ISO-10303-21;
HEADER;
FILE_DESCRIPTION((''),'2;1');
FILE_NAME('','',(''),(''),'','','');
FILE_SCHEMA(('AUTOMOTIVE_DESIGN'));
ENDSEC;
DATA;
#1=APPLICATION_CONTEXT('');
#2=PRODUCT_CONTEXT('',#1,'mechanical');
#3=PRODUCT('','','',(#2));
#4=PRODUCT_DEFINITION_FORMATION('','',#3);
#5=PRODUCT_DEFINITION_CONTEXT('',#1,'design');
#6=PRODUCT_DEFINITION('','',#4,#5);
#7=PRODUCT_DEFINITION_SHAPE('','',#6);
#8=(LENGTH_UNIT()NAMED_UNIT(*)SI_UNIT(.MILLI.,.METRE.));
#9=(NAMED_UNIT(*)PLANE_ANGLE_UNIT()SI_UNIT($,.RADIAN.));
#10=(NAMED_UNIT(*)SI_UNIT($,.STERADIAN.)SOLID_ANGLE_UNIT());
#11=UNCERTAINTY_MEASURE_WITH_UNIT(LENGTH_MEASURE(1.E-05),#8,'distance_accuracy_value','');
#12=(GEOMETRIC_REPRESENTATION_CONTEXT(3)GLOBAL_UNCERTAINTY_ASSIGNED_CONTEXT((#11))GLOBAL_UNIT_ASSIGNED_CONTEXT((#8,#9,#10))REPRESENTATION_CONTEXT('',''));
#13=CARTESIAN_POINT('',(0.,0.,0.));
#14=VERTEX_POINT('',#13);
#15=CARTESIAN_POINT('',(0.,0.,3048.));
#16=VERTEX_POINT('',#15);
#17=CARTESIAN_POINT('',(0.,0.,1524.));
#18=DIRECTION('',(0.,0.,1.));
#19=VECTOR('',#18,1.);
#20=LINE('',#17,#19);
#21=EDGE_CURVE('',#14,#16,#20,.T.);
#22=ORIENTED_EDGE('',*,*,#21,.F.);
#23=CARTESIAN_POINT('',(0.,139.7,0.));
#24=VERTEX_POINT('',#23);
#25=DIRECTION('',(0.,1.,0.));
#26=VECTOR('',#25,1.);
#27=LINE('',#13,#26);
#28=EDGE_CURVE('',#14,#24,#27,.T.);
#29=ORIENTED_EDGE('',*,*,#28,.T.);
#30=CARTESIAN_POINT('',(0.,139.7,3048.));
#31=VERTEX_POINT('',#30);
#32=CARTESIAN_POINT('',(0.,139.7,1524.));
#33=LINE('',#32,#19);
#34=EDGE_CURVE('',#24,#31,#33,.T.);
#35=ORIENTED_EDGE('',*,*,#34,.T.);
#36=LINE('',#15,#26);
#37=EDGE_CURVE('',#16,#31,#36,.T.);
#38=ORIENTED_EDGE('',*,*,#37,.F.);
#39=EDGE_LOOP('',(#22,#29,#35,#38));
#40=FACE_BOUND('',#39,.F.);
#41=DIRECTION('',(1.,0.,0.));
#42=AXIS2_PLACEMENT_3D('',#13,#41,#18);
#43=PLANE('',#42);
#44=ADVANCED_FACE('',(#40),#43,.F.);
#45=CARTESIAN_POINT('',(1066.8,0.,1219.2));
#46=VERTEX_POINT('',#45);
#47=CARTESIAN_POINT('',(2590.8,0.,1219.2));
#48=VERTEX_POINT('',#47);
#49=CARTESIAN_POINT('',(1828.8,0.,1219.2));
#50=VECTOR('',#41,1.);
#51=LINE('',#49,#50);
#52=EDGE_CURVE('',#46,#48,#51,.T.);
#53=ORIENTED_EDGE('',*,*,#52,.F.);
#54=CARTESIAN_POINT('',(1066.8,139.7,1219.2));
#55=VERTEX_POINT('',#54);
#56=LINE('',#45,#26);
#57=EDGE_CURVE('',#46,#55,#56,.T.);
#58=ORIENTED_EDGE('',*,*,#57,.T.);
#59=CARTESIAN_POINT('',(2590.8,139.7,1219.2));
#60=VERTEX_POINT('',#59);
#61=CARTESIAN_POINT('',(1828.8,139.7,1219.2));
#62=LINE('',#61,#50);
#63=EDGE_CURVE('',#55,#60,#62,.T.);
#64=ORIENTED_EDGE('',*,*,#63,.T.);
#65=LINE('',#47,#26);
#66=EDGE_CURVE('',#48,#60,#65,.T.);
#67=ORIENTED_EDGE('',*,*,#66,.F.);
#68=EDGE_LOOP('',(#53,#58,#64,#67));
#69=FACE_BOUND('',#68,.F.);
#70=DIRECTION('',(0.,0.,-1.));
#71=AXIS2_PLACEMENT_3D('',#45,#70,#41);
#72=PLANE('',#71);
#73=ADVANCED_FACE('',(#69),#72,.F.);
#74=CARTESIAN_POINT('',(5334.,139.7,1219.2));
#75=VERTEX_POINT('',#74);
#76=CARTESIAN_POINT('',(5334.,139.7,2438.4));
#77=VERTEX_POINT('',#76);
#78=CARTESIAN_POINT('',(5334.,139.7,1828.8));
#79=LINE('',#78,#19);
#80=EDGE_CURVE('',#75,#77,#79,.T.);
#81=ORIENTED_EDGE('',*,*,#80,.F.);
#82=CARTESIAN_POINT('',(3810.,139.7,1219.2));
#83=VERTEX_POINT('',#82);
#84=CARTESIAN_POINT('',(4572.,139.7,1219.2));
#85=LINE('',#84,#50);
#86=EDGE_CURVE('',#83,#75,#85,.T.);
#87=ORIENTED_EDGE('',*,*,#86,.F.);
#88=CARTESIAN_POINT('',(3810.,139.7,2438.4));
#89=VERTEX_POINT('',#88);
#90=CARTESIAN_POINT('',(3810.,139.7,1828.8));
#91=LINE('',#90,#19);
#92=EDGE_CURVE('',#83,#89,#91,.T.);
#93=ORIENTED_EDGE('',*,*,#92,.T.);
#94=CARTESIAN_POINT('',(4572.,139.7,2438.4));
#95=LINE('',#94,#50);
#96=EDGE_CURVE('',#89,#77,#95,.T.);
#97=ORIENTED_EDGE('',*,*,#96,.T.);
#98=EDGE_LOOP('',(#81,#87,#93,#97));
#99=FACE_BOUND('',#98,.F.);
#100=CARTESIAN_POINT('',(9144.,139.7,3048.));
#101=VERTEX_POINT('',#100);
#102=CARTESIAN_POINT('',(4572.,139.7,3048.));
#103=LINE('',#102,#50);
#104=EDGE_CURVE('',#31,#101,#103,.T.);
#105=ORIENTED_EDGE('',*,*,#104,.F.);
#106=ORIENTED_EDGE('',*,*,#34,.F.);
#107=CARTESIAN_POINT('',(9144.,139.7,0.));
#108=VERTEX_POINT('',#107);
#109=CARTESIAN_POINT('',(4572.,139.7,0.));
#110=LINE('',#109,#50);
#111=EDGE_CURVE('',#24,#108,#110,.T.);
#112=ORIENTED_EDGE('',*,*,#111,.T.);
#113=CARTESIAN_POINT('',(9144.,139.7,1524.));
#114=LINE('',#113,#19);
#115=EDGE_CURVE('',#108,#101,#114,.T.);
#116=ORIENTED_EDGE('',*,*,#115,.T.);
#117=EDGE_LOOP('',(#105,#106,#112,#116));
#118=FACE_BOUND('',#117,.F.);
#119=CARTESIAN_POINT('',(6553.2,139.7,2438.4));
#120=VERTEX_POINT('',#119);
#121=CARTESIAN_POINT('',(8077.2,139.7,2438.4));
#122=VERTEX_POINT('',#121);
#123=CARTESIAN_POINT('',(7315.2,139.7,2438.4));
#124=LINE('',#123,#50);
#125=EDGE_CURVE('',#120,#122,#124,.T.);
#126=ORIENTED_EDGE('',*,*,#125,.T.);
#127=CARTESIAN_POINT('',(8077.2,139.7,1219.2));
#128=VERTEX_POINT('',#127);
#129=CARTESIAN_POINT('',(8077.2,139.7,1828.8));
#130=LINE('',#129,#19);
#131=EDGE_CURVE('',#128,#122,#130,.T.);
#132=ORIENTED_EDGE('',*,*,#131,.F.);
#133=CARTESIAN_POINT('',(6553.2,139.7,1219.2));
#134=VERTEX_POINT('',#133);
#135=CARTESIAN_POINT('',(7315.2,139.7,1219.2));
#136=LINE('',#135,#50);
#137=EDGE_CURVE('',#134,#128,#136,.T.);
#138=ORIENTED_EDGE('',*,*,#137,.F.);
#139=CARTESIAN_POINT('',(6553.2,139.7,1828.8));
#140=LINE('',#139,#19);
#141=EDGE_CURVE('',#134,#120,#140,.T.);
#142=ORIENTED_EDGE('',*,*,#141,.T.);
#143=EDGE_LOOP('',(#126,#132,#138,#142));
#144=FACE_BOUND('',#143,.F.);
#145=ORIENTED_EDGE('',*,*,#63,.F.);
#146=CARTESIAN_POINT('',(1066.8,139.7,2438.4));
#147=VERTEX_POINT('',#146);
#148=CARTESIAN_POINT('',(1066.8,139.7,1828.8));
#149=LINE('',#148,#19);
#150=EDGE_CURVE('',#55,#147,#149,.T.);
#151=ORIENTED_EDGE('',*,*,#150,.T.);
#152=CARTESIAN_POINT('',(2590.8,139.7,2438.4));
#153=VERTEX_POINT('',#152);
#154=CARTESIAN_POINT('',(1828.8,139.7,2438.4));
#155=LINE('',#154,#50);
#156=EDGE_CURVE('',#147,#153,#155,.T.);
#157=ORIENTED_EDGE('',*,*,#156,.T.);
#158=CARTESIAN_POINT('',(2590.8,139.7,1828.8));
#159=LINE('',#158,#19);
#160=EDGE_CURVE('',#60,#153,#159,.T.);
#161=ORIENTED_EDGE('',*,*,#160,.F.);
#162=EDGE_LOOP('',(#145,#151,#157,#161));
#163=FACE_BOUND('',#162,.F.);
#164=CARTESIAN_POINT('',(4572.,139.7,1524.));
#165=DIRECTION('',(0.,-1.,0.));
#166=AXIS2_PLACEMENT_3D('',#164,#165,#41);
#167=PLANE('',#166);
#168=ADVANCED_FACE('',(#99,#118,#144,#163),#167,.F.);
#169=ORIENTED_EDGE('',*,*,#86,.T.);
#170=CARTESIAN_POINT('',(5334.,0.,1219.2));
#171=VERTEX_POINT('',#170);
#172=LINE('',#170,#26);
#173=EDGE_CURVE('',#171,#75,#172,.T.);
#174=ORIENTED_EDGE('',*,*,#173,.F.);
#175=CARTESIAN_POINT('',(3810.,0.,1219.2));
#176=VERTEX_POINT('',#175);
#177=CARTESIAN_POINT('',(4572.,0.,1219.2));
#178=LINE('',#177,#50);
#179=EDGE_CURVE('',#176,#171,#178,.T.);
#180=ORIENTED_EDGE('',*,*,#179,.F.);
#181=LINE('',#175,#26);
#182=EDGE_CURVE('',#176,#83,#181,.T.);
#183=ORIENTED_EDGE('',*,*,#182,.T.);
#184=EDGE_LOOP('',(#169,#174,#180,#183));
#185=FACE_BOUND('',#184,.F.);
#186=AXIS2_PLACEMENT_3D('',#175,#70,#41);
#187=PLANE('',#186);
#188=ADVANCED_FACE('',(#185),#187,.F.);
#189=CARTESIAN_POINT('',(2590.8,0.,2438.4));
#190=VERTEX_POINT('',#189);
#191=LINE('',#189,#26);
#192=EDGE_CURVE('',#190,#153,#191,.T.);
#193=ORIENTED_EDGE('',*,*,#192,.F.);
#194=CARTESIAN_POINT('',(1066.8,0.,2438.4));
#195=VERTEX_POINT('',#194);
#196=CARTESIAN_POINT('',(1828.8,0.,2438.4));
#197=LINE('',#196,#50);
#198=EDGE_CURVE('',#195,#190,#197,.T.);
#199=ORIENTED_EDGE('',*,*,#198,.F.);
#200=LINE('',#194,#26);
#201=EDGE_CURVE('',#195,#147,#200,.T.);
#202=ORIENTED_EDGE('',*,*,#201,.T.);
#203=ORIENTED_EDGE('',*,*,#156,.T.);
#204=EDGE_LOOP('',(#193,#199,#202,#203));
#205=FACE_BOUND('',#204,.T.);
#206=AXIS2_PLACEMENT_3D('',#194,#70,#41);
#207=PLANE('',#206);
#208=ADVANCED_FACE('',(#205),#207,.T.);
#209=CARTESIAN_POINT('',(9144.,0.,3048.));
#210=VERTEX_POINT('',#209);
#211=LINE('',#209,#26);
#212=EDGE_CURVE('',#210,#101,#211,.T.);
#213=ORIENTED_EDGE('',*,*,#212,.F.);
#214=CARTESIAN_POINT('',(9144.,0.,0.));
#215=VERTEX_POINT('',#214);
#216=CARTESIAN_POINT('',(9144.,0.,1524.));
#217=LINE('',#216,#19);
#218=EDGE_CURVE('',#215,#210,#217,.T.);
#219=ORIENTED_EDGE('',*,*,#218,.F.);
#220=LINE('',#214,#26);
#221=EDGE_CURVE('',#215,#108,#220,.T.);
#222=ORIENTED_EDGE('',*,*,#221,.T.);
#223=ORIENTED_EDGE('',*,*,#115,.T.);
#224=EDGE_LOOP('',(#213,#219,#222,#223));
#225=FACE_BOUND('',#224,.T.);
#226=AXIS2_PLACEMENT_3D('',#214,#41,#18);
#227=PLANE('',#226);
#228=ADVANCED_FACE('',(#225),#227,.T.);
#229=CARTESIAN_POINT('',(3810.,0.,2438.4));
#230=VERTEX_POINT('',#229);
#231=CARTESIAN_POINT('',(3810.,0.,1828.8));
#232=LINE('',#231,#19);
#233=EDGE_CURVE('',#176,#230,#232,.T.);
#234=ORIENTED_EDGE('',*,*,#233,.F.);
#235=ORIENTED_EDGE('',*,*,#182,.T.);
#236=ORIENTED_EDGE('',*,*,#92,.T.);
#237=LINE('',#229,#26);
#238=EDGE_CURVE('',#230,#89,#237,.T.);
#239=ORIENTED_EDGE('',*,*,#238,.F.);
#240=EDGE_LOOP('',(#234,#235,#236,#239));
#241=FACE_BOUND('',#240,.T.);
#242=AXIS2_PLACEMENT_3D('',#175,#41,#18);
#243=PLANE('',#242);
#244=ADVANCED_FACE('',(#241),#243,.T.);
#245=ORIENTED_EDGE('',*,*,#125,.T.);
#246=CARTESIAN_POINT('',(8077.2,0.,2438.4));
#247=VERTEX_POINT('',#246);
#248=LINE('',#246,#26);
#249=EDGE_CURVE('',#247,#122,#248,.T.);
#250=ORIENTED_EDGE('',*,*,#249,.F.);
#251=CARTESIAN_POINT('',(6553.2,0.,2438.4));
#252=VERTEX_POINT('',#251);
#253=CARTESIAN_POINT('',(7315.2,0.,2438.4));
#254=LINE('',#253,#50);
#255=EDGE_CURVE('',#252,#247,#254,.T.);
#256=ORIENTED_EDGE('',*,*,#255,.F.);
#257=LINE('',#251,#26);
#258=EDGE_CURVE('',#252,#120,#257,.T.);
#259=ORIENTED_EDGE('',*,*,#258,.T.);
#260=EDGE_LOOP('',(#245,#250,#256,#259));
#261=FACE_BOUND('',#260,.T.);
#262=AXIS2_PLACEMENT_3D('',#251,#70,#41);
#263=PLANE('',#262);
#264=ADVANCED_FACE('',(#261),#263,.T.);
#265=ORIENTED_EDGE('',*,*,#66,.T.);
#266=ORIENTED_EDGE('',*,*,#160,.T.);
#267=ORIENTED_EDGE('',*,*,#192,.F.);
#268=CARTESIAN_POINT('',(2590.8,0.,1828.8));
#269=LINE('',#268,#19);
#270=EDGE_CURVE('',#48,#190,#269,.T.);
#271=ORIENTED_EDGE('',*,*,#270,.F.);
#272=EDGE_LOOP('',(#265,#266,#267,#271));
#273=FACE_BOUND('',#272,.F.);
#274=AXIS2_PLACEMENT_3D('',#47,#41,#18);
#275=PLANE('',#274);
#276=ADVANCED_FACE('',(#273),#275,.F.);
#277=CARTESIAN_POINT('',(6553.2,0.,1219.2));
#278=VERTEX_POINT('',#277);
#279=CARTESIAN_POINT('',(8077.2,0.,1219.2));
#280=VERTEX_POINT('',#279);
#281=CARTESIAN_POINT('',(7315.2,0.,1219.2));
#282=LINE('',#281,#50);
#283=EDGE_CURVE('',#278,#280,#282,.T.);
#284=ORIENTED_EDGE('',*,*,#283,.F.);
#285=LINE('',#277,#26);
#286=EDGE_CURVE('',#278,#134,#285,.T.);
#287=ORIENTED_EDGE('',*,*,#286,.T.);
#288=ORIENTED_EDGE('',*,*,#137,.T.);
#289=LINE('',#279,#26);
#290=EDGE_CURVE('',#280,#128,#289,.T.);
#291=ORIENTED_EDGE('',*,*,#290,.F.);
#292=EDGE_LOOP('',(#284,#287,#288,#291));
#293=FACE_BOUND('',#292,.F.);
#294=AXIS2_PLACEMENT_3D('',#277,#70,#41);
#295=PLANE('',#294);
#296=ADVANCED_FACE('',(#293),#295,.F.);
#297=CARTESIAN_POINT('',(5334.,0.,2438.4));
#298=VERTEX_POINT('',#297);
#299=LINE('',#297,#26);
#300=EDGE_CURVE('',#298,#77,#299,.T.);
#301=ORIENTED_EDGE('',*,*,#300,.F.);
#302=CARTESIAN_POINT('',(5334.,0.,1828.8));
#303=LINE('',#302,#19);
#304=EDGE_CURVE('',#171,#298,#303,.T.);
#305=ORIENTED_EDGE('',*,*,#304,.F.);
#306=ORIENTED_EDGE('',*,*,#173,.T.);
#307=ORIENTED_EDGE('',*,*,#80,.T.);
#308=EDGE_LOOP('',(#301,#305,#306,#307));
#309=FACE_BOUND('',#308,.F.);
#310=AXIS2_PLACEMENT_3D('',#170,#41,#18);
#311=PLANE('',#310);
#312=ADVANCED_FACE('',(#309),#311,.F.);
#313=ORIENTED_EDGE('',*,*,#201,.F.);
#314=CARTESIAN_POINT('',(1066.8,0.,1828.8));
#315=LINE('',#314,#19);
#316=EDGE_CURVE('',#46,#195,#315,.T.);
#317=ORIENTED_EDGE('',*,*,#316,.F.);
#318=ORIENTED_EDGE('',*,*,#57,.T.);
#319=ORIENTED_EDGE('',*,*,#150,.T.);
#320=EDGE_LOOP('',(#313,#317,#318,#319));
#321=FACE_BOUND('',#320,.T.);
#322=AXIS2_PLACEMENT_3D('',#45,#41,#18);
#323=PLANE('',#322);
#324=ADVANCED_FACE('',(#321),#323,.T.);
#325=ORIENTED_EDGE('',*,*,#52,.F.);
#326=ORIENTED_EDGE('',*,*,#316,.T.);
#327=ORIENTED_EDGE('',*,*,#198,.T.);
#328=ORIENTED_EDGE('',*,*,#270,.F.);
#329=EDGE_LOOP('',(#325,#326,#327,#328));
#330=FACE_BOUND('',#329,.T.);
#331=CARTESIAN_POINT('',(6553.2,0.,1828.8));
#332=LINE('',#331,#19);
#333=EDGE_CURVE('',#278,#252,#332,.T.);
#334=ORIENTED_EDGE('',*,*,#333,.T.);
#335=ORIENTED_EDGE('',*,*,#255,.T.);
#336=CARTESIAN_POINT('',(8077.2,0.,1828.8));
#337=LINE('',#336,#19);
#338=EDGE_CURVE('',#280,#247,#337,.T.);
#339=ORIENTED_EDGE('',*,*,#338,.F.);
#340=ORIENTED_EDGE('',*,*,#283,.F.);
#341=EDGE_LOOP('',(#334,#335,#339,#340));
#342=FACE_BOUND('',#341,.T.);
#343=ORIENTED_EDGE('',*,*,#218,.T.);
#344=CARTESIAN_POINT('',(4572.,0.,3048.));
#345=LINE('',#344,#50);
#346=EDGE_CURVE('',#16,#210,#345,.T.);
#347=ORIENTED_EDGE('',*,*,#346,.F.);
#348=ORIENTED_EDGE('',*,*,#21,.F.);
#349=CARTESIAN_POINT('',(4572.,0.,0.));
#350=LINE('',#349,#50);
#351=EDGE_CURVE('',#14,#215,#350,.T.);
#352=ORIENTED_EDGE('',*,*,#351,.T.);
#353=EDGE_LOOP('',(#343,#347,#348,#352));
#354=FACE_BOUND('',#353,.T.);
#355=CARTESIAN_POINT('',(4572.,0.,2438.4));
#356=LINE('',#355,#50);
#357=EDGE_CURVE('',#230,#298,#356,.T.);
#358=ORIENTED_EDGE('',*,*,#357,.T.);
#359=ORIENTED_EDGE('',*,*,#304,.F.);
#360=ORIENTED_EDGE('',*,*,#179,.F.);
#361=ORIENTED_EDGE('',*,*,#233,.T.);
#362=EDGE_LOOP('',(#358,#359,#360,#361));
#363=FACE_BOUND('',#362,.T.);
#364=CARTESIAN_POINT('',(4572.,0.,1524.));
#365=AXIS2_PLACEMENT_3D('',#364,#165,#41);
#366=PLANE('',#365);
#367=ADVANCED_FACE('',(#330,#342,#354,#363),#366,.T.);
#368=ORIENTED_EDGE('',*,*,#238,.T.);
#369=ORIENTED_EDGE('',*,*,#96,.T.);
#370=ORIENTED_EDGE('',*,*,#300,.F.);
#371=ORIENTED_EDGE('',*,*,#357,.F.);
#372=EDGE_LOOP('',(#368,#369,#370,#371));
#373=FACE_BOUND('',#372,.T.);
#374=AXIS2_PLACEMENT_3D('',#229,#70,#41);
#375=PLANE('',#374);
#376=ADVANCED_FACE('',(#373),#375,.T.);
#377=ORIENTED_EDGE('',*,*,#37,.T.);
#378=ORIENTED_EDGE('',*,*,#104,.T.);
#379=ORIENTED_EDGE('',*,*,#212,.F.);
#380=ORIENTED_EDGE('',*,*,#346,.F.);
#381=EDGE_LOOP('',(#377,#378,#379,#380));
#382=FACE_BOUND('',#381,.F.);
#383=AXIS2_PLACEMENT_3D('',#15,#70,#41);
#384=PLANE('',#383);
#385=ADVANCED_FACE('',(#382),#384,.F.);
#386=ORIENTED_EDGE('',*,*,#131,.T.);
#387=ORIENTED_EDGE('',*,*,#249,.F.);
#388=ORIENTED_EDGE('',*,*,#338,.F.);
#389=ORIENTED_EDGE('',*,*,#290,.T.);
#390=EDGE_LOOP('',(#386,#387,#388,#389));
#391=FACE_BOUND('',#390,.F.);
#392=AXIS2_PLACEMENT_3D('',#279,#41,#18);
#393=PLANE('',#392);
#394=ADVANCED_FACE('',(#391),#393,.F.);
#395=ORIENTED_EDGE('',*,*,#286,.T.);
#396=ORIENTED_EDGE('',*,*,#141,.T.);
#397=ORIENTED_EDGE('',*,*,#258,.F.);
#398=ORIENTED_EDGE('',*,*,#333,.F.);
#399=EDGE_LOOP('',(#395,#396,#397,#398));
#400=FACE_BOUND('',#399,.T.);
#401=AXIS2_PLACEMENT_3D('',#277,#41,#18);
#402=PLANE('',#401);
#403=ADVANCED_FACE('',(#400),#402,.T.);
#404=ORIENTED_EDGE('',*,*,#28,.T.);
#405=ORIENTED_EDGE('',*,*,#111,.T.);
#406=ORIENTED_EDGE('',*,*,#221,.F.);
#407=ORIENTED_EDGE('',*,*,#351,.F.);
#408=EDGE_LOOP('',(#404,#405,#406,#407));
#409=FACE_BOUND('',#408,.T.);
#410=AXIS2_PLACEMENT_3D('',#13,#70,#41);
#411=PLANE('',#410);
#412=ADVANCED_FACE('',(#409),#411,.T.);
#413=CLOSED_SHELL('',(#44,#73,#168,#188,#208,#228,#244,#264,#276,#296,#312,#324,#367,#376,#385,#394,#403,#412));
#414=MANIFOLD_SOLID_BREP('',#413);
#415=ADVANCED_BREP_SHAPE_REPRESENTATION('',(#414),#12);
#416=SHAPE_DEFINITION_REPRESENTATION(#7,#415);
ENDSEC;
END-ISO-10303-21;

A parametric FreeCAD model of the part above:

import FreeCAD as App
import Part
import Sketcher
Q = App.Units.Quantity

doc = App.newDocument("Part")
body = doc.addObject("PartDesign::Body", "Body")

sketch1 = body.newObject("Sketcher::SketchObject", "Sketch")
sketch1.AttachmentSupport = (doc.getObject("XZ_Plane"), [""])
sketch1.MapMode = "FlatFace"
sketch1.addGeometry([
    Part.LineSegment(App.Vector(0, 3048, 0), App.Vector(0, 0, 0)),
    Part.LineSegment(App.Vector(0, 0, 0), App.Vector(9144, 0, 0)),
    Part.LineSegment(App.Vector(9144, 0, 0), App.Vector(9144, 3048, 0)),
    Part.LineSegment(App.Vector(9144, 3048, 0), App.Vector(0, 3048, 0)),
    Part.LineSegment(App.Vector(2591, 1219, 0), App.Vector(1067, 1219, 0)),
    Part.LineSegment(App.Vector(1067, 1219, 0), App.Vector(1067, 2438, 0)),
    Part.LineSegment(App.Vector(1067, 2438, 0), App.Vector(2591, 2438, 0)),
    Part.LineSegment(App.Vector(2591, 2438, 0), App.Vector(2591, 1219, 0)),
    Part.LineSegment(App.Vector(5334, 1219, 0), App.Vector(3810, 1219, 0)),
    Part.LineSegment(App.Vector(3810, 1219, 0), App.Vector(3810, 2438, 0)),
    Part.LineSegment(App.Vector(3810, 2438, 0), App.Vector(5334, 2438, 0)),
    Part.LineSegment(App.Vector(5334, 2438, 0), App.Vector(5334, 1219, 0)),
    Part.LineSegment(App.Vector(8077, 1219, 0), App.Vector(6553, 1219, 0)),
    Part.LineSegment(App.Vector(6553, 1219, 0), App.Vector(6553, 2438, 0)),
    Part.LineSegment(App.Vector(6553, 2438, 0), App.Vector(8077, 2438, 0)),
    Part.LineSegment(App.Vector(8077, 2438, 0), App.Vector(8077, 1219, 0)),
], False)
sketch1.addConstraint([
    Sketcher.Constraint("Coincident", 0, 2, 1, 1),
    Sketcher.Constraint("Coincident", 1, 2, 2, 1),
    Sketcher.Constraint("Coincident", 2, 2, 3, 1),
    Sketcher.Constraint("Coincident", 3, 2, 0, 1),
    Sketcher.Constraint("Coincident", 4, 2, 5, 1),
    Sketcher.Constraint("Coincident", 5, 2, 6, 1),
    Sketcher.Constraint("Coincident", 6, 2, 7, 1),
    Sketcher.Constraint("Coincident", 7, 2, 4, 1),
    Sketcher.Constraint("Coincident", 8, 2, 9, 1),
    Sketcher.Constraint("Coincident", 9, 2, 10, 1),
    Sketcher.Constraint("Coincident", 10, 2, 11, 1),
    Sketcher.Constraint("Coincident", 11, 2, 8, 1),
    Sketcher.Constraint("Coincident", 12, 2, 13, 1),
    Sketcher.Constraint("Coincident", 13, 2, 14, 1),
    Sketcher.Constraint("Coincident", 14, 2, 15, 1),
    Sketcher.Constraint("Coincident", 15, 2, 12, 1),
    Sketcher.Constraint("Vertical", 0),
    Sketcher.Constraint("Horizontal", 1),
    Sketcher.Constraint("Vertical", 2),
    Sketcher.Constraint("Horizontal", 3),
    Sketcher.Constraint("Horizontal", 4),
    Sketcher.Constraint("Vertical", 5),
    Sketcher.Constraint("Horizontal", 6),
    Sketcher.Constraint("Vertical", 7),
    Sketcher.Constraint("Horizontal", 8),
    Sketcher.Constraint("Vertical", 9),
    Sketcher.Constraint("Horizontal", 10),
    Sketcher.Constraint("Vertical", 11),
    Sketcher.Constraint("Horizontal", 12),
    Sketcher.Constraint("Vertical", 13),
    Sketcher.Constraint("Horizontal", 14),
    Sketcher.Constraint("Vertical", 15),
    Sketcher.Constraint("Coincident", 0, 2, -1, 1),
    Sketcher.Constraint("Horizontal", 7, 2, 8, 2),
    Sketcher.Constraint("Horizontal", 6, 2, 9, 2),
    Sketcher.Constraint("Horizontal", 11, 2, 12, 2),
    Sketcher.Constraint("Horizontal", 10, 2, 13, 2),
    Sketcher.Constraint("Equal", 6, 8),
    Sketcher.Constraint("Equal", 10, 12),
    Sketcher.Constraint("DistanceX", 1, 1, 1, 2, Q("360 in")),
    Sketcher.Constraint("DistanceX", 4, 2, 4, 1, Q("60 in")),
    Sketcher.Constraint("DistanceY", 0, 2, 0, 1, Q("120 in")),
    Sketcher.Constraint("DistanceY", 5, 1, 5, 2, Q("48 in")),
    Sketcher.Constraint("DistanceX", -1, 1, 4, 2, Q("42 in")),
    Sketcher.Constraint("DistanceY", -1, 1, 4, 2, Q("48 in")),
    Sketcher.Constraint("DistanceX", -1, 1, 8, 2, Q("150 in")),
    Sketcher.Constraint("DistanceX", -1, 1, 12, 2, Q("258 in")),
])
pad1 = body.newObject("PartDesign::Pad", "Pad")
pad1.Profile = sketch1
pad1.Length = Q("5.5 in")
pad1.Reversed = True

doc.recompute()
